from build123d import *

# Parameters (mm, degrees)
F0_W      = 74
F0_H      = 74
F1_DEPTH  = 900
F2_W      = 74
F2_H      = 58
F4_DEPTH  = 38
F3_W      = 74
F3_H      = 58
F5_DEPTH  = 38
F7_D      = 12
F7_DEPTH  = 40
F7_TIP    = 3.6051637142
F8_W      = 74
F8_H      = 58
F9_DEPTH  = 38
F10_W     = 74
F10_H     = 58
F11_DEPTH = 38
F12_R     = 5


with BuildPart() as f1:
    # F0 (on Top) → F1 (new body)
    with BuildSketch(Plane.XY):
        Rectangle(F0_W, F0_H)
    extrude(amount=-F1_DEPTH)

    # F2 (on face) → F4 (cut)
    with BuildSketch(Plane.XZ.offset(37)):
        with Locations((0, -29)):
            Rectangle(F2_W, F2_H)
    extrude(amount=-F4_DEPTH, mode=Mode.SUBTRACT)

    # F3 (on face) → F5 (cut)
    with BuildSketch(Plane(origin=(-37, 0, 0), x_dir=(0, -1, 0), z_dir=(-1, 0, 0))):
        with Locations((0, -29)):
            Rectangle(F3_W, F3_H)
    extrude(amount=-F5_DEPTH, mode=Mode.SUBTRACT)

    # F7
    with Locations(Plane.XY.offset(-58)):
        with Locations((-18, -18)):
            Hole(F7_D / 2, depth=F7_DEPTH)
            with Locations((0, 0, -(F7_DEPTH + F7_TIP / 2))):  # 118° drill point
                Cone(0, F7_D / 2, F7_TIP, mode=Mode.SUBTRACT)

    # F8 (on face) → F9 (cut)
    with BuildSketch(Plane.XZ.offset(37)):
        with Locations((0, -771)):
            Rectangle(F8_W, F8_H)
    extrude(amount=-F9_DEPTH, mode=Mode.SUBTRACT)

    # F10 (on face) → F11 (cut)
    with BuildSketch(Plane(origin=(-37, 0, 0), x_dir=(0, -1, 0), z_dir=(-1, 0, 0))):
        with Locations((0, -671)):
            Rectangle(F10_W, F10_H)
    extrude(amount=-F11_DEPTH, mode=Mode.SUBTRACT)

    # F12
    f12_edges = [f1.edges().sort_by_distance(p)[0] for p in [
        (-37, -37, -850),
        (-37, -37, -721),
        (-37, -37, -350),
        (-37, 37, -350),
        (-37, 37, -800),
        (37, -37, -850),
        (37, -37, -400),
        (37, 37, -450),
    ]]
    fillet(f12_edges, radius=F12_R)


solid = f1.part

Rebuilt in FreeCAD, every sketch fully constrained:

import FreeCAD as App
import Part
import Sketcher
Q = App.Units.Quantity


def edges_at(feature, points):
    """Names of the edges that pass closest to the given points."""
    edges = feature.Shape.Edges
    near = lambda p: min(range(len(edges)), key=lambda i: edges[i].distToShape(Part.Vertex(*p))[0])
    return sorted({f"Edge{near(p) + 1}" for p in points})


def add_polygon(sketch, points):
    """Adds a closed chain of lines whose ends are joined by coincident constraints."""
    first, n = sketch.GeometryCount, len(points)
    for a, b in zip(points, points[1:] + points[:1]):
        sketch.addGeometry(Part.LineSegment(App.Vector(*a, 0), App.Vector(*b, 0)), False)
    for i in range(n):
        sketch.addConstraint(Sketcher.Constraint("Coincident", first + i, 2, first + (i + 1) % n, 1))

doc = App.newDocument("Part")
body = doc.addObject("PartDesign::Body", "Body")

# Sketch on XY plane
sketch1 = doc.addObject("Sketcher::SketchObject", "Sketch")
body.addObject(sketch1)
sketch1.AttachmentSupport = (doc.XY_Plane, [""])
sketch1.MapMode = "FlatFace"
add_polygon(sketch1, [(-37, 37), (-37, -37), (37, -37), (37, 37)])  # lines 0-3
sketch1.addConstraint([
    Sketcher.Constraint("Vertical", 0),
    Sketcher.Constraint("Horizontal", 1),
    Sketcher.Constraint("Vertical", 2),
    Sketcher.Constraint("Horizontal", 3),
    Sketcher.Constraint("Symmetric", 0, 2, 2, 2, -1, 1),
    Sketcher.Constraint("Equal", 3, 0),
    Sketcher.Constraint("DistanceX", 1, 1, 1, 2, Q("74 mm")),
])
pad1 = doc.addObject("PartDesign::Pad", "Pad")
body.addObject(pad1)
pad1.Profile = sketch1
pad1.Length = 900
pad1.Reversed = True

# Sketch on XZ plane
sketch2 = doc.addObject("Sketcher::SketchObject", "Sketch001")
body.addObject(sketch2)
sketch2.AttachmentSupport = (doc.XZ_Plane, [""])
sketch2.MapMode = "FlatFace"
sketch2.AttachmentOffset = App.Placement(App.Vector(0, 0, 37), App.Rotation())
add_polygon(sketch2, [(-37, 0), (-37, -58), (37, -58), (37, 0)])  # lines 0-3
sketch2.addConstraint([
    Sketcher.Constraint("Vertical", 0),
    Sketcher.Constraint("Horizontal", 1),
    Sketcher.Constraint("Vertical", 2),
    Sketcher.Constraint("Horizontal", 3),
    Sketcher.Constraint("Symmetric", 2, 2, 3, 2, -1, 1),
    Sketcher.Constraint("DistanceX", 1, 1, 1, 2, Q("74 mm")),
    Sketcher.Constraint("DistanceY", 0, 2, 0, 1, Q("58 mm")),
])
pocket1 = doc.addObject("PartDesign::Pocket", "Pocket")
body.addObject(pocket1)
pocket1.Profile = sketch2
pocket1.Length = 38

# Sketch on YZ plane
sketch3 = doc.addObject("Sketcher::SketchObject", "Sketch002")
body.addObject(sketch3)
sketch3.AttachmentSupport = (doc.YZ_Plane, [""])
sketch3.MapMode = "FlatFace"
sketch3.AttachmentOffset = App.Placement(App.Vector(0, 0, -37), App.Rotation())
add_polygon(sketch3, [(37, 0), (37, -58), (-37, -58), (-37, 0)])  # lines 0-3
sketch3.addConstraint([
    Sketcher.Constraint("Vertical", 0),
    Sketcher.Constraint("Horizontal", 1),
    Sketcher.Constraint("Vertical", 2),
    Sketcher.Constraint("Horizontal", 3),
    Sketcher.Constraint("Symmetric", 2, 2, 3, 2, -1, 1),
    Sketcher.Constraint("DistanceX", 1, 2, 1, 1, Q("74 mm")),
    Sketcher.Constraint("DistanceY", 0, 2, 0, 1, Q("58 mm")),
])
pocket2 = doc.addObject("PartDesign::Pocket", "Pocket001")
body.addObject(pocket2)
pocket2.Profile = sketch3
pocket2.Length = 38
pocket2.Reversed = True

# Sketch on XY plane
sketch4 = doc.addObject("Sketcher::SketchObject", "Sketch003")
body.addObject(sketch4)
sketch4.AttachmentSupport = (doc.XY_Plane, [""])
sketch4.MapMode = "FlatFace"
sketch4.AttachmentOffset = App.Placement(App.Vector(0, 0, -58), App.Rotation())
sketch4.addGeometry(Part.Circle(App.Vector(-18, -18, 0), App.Vector(0, 0, 1), 6), False)
sketch4.addConstraint([
    Sketcher.Constraint("Diameter", 0, Q("12 mm")),
    Sketcher.Constraint("DistanceX", 0, 3, -1, 1, Q("18 mm")),
    Sketcher.Constraint("DistanceY", 0, 3, -1, 1, Q("18 mm")),
])
doc.recompute()
hole = doc.addObject("PartDesign::Hole", "Hole")
body.addObject(hole)
hole.Profile = sketch4
hole.ThreadType = "None"
hole.Diameter = 12
hole.DepthType = "Dimension"
hole.Depth = 40
hole.DrillPoint = "Angled"
hole.DrillPointAngle = 118

# Sketch on XZ plane
sketch5 = doc.addObject("Sketcher::SketchObject", "Sketch004")
body.addObject(sketch5)
sketch5.AttachmentSupport = (doc.XZ_Plane, [""])
sketch5.MapMode = "FlatFace"
sketch5.AttachmentOffset = App.Placement(App.Vector(0, 0, 37), App.Rotation())
add_polygon(sketch5, [(-37, -742), (-37, -800), (37, -800), (37, -742)])  # lines 0-3
sketch5.addConstraint([
    Sketcher.Constraint("Vertical", 0),
    Sketcher.Constraint("Horizontal", 1),
    Sketcher.Constraint("Vertical", 2),
    Sketcher.Constraint("Horizontal", 3),
    Sketcher.Constraint("DistanceX", 1, 1, 1, 2, Q("74 mm")),
    Sketcher.Constraint("DistanceY", 0, 2, 0, 1, Q("58 mm")),
    Sketcher.Constraint("DistanceX", 0, 2, -1, 1, Q("37 mm")),
    Sketcher.Constraint("DistanceY", 0, 2, -1, 1, Q("800 mm")),
])
pocket3 = doc.addObject("PartDesign::Pocket", "Pocket002")
body.addObject(pocket3)
pocket3.Profile = sketch5
pocket3.Length = 38

# Sketch on YZ plane
sketch6 = doc.addObject("Sketcher::SketchObject", "Sketch005")
body.addObject(sketch6)
sketch6.AttachmentSupport = (doc.YZ_Plane, [""])
sketch6.MapMode = "FlatFace"
sketch6.AttachmentOffset = App.Placement(App.Vector(0, 0, -37), App.Rotation())
add_polygon(sketch6, [(37, -642), (37, -700), (-37, -700), (-37, -642)])  # lines 0-3
sketch6.addConstraint([
    Sketcher.Constraint("Vertical", 0),
    Sketcher.Constraint("Horizontal", 1),
    Sketcher.Constraint("Vertical", 2),
    Sketcher.Constraint("Horizontal", 3),
    Sketcher.Constraint("DistanceX", 1, 2, 1, 1, Q("74 mm")),
    Sketcher.Constraint("DistanceY", 0, 2, 0, 1, Q("58 mm")),
    Sketcher.Constraint("DistanceX", -1, 1, 0, 2, Q("37 mm")),
    Sketcher.Constraint("DistanceY", 0, 2, -1, 1, Q("700 mm")),
])
pocket4 = doc.addObject("PartDesign::Pocket", "Pocket003")
body.addObject(pocket4)
pocket4.Profile = sketch6
pocket4.Length = 38
pocket4.Reversed = True
doc.recompute()

fillet = doc.addObject("PartDesign::Fillet", "Fillet")
body.addObject(fillet)
fillet.Base = (pocket4, edges_at(pocket4, [
    (-37, -37, -850),
    (-37, -37, -721),
    (-37, -37, -350),
    (-37, 37, -350),
    (-37, 37, -800),
    (37, -37, -850),
    (37, -37, -400),
    (37, 37, -450),
]))
fillet.Radius = 5

doc.recompute()
